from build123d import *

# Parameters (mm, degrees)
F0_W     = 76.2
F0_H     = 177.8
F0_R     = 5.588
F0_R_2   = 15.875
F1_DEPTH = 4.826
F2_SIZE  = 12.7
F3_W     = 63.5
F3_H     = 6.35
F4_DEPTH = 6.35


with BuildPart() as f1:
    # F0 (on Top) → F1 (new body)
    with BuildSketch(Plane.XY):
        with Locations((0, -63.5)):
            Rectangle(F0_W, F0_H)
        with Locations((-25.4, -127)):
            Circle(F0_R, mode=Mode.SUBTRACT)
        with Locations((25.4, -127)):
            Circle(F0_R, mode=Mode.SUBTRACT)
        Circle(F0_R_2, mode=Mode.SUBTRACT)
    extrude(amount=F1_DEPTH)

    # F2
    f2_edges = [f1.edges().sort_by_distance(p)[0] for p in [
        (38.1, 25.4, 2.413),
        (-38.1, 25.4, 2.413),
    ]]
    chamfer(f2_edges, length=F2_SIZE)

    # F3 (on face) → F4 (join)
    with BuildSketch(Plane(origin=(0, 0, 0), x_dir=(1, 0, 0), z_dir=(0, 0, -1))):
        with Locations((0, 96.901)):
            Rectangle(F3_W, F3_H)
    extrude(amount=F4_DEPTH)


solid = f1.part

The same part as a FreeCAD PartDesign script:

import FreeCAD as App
import Part
import Sketcher
Q = App.Units.Quantity


def edges_at(feature, points):
    """Names of the edges that pass closest to the given points."""
    edges = feature.Shape.Edges
    near = lambda p: min(range(len(edges)), key=lambda i: edges[i].distToShape(Part.Vertex(*p))[0])
    return sorted({f"Edge{near(p) + 1}" for p in points})


def add_polygon(sketch, points):
    """Adds a closed chain of lines whose ends are joined by coincident constraints."""
    first, n = sketch.GeometryCount, len(points)
    for a, b in zip(points, points[1:] + points[:1]):
        sketch.addGeometry(Part.LineSegment(App.Vector(*a, 0), App.Vector(*b, 0)), False)
    for i in range(n):
        sketch.addConstraint(Sketcher.Constraint("Coincident", first + i, 2, first + (i + 1) % n, 1))

doc = App.newDocument("Part")
params = doc.addObject("Spreadsheet::Sheet", "Params")
for row, (alias, value) in enumerate([
    ("sketch1_diameter", "0.44 in"),
    ("sketch1_diameter2", "1.25 in"),
    ("sketch1_width", "3 in"),
    ("sketch1_height", "7 in"),
    ("pad1_length", "0.19 in"),
    ("chamfer_size", "0.5 in"),
    ("sketch2_width", "2.5 in"),
    ("sketch2_height", "0.25 in"),
    ("pad2_length", "0.25 in"),
], start=1):
    params.set(f"A{row}", alias)
    params.set(f"B{row}", "=" + value)
    params.setAlias(f"B{row}", alias)

body = doc.addObject("PartDesign::Body", "Body")

sketch1 = body.newObject("Sketcher::SketchObject", "Sketch")
sketch1.AttachmentSupport = (doc.getObject("XY_Plane"), [""])
sketch1.MapMode = "FlatFace"
add_polygon(sketch1, [(-38.1, 25.4), (-38.1, -152.4), (38.1, -152.4), (38.1, 25.4)])
sketch1.addGeometry(Part.Circle(App.Vector(-25.4, -127, 0), App.Vector(0, 0, 1), 5.588), False)
sketch1.addGeometry(Part.Circle(App.Vector(25.4, -127, 0), App.Vector(0, 0, 1), 5.588), False)
sketch1.addGeometry(Part.Circle(App.Vector(0, 0, 0), App.Vector(0, 0, 1), 15.875), False)
sketch1.addConstraint(Sketcher.Constraint("Vertical", 0))
sketch1.addConstraint(Sketcher.Constraint("Horizontal", 1))
sketch1.addConstraint(Sketcher.Constraint("Vertical", 2))
sketch1.addConstraint(Sketcher.Constraint("Horizontal", 3))
sketch1.addConstraint(Sketcher.Constraint("Coincident", 6, 3, -1, 1))
sketch1.addConstraint(Sketcher.Constraint("Equal", 4, 5))
sketch1.addConstraint(Sketcher.Constraint("Symmetric", 4, 3, 5, 3, -2))
sketch1.addConstraint(Sketcher.Constraint("Diameter", 4, Q("0.44 in")))
sketch1.addConstraint(Sketcher.Constraint("Diameter", 6, Q("1.25 in")))
sketch1.addConstraint(Sketcher.Constraint("DistanceX", 1, 1, 1, 2, Q("3 in")))
sketch1.addConstraint(Sketcher.Constraint("DistanceY", 0, 2, 0, 1, Q("7 in")))
sketch1.addConstraint(Sketcher.Constraint("DistanceX", 4, 3, -1, 1, Q("1 in")))
sketch1.addConstraint(Sketcher.Constraint("DistanceY", 4, 3, -1, 1, Q("5 in")))
sketch1.addConstraint(Sketcher.Constraint("DistanceY", 0, 2, -1, 1, Q("6 in")))
sketch1.addConstraint(Sketcher.Constraint("DistanceX", 0, 2, -1, 1, Q("1.5 in")))
sketch1.setExpression("Constraints[11]", "Params.sketch1_diameter")
sketch1.setExpression("Constraints[12]", "Params.sketch1_diameter2")
sketch1.setExpression("Constraints[13]", "Params.sketch1_width")
sketch1.setExpression("Constraints[14]", "Params.sketch1_height")
pad1 = body.newObject("PartDesign::Pad", "Pad")
pad1.Profile = sketch1
pad1.setExpression("Length", "Params.pad1_length")
doc.recompute()

chamfer = body.newObject("PartDesign::Chamfer", "Chamfer")
chamfer.Base = (pad1, edges_at(pad1, [(38.1, 25.4, 2.413), (-38.1, 25.4, 2.413)]))
chamfer.setExpression("Size", "Params.chamfer_size")

sketch2 = body.newObject("Sketcher::SketchObject", "Sketch001")
sketch2.AttachmentSupport = (doc.getObject("XY_Plane"), [""])
sketch2.MapMode = "FlatFace"
add_polygon(sketch2, [(-31.75, -100.076), (-31.75, -93.726), (31.75, -93.726), (31.75, -100.076)])
sketch2.addConstraint(Sketcher.Constraint("Vertical", 0))
sketch2.addConstraint(Sketcher.Constraint("Horizontal", 1))
sketch2.addConstraint(Sketcher.Constraint("Vertical", 2))
sketch2.addConstraint(Sketcher.Constraint("Horizontal", 3))
sketch2.addConstraint(Sketcher.Constraint("DistanceX", 1, 1, 1, 2, Q("2.5 in")))
sketch2.addConstraint(Sketcher.Constraint("DistanceY", 0, 1, 0, 2, Q("0.25 in")))
sketch2.addConstraint(Sketcher.Constraint("DistanceX", 0, 2, -1, 1, Q("1.25 in")))
sketch2.addConstraint(Sketcher.Constraint("DistanceY", 0, 2, -1, 1, Q("3.69 in")))
sketch2.setExpression("Constraints[8]", "Params.sketch2_width")
sketch2.setExpression("Constraints[9]", "Params.sketch2_height")
pad2 = body.newObject("PartDesign::Pad", "Pad001")
pad2.Profile = sketch2
pad2.setExpression("Length", "Params.pad2_length")
pad2.Reversed = True

doc.recompute()
